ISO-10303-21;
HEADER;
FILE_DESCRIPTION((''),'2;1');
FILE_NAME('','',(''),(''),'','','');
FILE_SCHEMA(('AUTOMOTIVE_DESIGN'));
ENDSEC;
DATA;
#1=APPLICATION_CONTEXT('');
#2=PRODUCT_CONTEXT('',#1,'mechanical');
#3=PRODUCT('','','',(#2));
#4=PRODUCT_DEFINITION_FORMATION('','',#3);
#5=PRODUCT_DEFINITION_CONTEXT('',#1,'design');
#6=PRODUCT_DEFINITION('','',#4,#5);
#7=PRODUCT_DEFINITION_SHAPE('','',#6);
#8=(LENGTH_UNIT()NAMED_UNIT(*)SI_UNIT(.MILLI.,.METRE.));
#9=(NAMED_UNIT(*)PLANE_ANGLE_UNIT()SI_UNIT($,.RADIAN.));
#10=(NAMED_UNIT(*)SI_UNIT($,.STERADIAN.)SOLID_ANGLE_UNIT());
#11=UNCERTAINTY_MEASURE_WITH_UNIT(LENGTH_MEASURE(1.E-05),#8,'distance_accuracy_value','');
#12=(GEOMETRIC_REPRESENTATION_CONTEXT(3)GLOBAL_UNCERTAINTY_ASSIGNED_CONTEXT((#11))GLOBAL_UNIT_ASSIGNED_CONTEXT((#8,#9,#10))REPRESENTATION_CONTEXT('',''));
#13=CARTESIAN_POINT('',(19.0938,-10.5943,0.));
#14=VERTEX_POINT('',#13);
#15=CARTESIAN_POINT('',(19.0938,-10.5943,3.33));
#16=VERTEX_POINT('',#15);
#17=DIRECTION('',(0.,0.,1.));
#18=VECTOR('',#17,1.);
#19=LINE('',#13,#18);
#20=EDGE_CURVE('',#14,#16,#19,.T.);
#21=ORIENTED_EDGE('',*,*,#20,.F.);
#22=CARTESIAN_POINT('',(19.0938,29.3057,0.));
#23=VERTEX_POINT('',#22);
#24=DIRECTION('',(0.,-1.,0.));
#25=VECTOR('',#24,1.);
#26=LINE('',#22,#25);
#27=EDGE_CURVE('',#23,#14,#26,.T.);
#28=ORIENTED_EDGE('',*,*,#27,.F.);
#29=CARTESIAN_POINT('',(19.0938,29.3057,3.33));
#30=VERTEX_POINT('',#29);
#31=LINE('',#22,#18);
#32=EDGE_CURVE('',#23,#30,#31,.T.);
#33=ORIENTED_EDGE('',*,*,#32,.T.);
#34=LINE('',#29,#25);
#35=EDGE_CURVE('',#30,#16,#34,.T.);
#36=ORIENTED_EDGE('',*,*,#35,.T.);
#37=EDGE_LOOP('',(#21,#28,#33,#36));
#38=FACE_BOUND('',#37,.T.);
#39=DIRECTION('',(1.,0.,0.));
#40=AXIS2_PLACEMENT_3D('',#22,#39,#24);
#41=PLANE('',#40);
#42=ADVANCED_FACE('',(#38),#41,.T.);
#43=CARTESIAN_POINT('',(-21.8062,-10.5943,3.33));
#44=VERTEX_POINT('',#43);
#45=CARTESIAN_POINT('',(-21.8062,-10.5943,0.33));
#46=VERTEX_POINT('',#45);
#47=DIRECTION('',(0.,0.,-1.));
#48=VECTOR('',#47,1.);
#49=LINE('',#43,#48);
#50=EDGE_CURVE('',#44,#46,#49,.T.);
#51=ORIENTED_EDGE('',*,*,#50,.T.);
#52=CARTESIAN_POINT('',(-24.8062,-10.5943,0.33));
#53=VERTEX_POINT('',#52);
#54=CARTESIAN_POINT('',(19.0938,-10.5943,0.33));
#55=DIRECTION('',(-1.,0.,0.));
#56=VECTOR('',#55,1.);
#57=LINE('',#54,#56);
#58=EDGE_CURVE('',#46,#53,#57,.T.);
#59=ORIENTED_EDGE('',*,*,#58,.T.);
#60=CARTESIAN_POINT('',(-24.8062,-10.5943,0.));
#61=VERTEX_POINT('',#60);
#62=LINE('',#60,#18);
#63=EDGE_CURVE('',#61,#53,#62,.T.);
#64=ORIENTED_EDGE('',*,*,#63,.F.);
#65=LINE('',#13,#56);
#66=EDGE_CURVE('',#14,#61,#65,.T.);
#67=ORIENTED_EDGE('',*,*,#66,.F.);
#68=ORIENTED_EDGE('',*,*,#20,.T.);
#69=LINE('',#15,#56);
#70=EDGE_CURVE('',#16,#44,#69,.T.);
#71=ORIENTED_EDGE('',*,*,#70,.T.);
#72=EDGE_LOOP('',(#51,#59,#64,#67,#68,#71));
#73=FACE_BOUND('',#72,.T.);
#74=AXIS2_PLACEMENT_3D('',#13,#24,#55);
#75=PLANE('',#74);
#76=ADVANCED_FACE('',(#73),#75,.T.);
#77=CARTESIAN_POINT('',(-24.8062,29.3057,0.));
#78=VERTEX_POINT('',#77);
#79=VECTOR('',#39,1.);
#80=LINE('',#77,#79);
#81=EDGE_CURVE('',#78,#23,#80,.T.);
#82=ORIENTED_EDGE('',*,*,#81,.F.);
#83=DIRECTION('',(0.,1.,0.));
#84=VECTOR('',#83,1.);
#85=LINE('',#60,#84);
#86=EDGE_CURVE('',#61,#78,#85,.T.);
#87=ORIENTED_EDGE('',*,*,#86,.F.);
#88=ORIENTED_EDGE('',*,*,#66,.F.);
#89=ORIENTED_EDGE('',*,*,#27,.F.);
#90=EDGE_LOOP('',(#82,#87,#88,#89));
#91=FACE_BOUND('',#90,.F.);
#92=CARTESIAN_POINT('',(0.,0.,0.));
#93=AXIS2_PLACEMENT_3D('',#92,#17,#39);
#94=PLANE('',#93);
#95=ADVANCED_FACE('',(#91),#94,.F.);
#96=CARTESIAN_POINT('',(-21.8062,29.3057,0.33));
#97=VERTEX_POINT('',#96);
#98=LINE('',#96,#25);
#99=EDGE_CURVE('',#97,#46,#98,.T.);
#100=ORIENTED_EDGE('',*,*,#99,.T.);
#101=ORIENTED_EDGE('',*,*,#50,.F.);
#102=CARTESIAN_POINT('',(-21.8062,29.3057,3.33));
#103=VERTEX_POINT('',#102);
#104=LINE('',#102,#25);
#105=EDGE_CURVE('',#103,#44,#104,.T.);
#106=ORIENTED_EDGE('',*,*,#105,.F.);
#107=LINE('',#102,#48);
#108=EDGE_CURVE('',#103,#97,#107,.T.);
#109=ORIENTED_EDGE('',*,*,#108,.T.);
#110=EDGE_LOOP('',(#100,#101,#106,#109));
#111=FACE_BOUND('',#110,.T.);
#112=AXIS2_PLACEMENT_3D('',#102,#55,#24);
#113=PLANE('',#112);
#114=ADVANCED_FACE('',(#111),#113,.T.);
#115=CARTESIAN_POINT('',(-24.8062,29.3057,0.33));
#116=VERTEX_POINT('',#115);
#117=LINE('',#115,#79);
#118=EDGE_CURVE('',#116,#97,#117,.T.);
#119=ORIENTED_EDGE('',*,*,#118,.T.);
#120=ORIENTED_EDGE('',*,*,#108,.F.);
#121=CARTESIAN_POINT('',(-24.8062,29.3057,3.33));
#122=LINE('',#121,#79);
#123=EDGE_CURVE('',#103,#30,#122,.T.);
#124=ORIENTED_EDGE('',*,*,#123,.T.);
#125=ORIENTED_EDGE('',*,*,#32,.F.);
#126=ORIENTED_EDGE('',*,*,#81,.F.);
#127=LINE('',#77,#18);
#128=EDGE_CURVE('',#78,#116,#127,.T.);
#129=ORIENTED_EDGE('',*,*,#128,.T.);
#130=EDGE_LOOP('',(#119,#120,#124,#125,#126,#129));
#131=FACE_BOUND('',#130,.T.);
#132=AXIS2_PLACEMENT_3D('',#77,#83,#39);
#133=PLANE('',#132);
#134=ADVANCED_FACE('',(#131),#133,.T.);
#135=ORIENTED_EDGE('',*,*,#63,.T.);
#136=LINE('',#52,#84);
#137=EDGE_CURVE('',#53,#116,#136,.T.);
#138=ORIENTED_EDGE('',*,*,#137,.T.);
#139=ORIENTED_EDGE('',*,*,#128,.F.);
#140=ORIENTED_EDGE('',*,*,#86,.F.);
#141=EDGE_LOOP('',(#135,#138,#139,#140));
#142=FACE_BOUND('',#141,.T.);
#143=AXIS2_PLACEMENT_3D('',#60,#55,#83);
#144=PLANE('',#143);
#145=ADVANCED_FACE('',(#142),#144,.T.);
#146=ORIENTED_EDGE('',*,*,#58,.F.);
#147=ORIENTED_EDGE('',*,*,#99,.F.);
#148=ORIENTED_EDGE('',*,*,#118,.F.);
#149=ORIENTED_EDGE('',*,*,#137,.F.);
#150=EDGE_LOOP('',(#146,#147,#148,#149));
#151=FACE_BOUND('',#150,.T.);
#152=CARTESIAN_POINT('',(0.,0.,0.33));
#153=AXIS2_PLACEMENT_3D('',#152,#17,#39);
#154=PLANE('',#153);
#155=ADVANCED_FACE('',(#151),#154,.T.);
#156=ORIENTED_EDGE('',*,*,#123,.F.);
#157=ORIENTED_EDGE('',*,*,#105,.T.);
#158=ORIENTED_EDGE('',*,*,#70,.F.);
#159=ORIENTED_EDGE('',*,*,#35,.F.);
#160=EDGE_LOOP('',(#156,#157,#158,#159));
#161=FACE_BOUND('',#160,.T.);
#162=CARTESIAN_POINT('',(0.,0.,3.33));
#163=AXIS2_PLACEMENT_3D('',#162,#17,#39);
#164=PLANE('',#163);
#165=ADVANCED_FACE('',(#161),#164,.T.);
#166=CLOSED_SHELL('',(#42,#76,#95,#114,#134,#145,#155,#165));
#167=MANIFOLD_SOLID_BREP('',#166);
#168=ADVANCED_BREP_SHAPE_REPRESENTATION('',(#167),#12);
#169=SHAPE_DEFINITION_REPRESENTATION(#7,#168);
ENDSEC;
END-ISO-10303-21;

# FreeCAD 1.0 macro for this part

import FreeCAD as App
import Part
import Sketcher

V = App.Vector
Q = App.Units.Quantity


def add_polygon(sketch, points):
    """Adds a closed chain of lines whose ends are joined by coincident constraints."""
    first, n = sketch.GeometryCount, len(points)
    for a, b in zip(points, points[1:] + points[:1]):
        sketch.addGeometry(Part.LineSegment(App.Vector(*a, 0), App.Vector(*b, 0)), False)
    for i in range(n):
        sketch.addConstraint(Sketcher.Constraint("Coincident", first + i, 2, first + (i + 1) % n, 1))

doc = App.newDocument("Part")
params = doc.addObject("Spreadsheet::Sheet", "Params")
for row, (alias, value) in enumerate([
    ("sketch1_width", "43.9 mm"),
    ("sketch1_height", "39.9 mm"),
    ("pad1_length", "3.33 mm"),
    ("sketch2_width", "3 mm"),
    ("sketch2_height", "39.9 mm"),
    ("pocket1_length", "3 mm"),
], start=1):
    params.set(f"A{row}", alias)
    params.set(f"B{row}", "=" + value)
    params.setAlias(f"B{row}", alias)

body = doc.addObject("PartDesign::Body", "Body")

# Sketch on XY plane
sketch1 = doc.addObject("Sketcher::SketchObject", "Sketch")
body.addObject(sketch1)
sketch1.AttachmentSupport = (doc.XY_Plane, [""])
sketch1.MapMode = "FlatFace"
add_polygon(sketch1, [(19.0938, 29.3057), (-24.8062, 29.3057), (-24.8062, -10.5943), (19.0938, -10.5943)])  # lines 0-3
sketch1.addConstraint(Sketcher.Constraint("Horizontal", 0))
sketch1.addConstraint(Sketcher.Constraint("Vertical", 1))
sketch1.addConstraint(Sketcher.Constraint("Horizontal", 2))
sketch1.addConstraint(Sketcher.Constraint("Vertical", 3))
sketch1.addConstraint(Sketcher.Constraint("DistanceX", 0, 2, 0, 1, Q("43.9 mm")))
sketch1.addConstraint(Sketcher.Constraint("DistanceY", 1, 2, 1, 1, Q("39.9 mm")))
sketch1.addConstraint(Sketcher.Constraint("DistanceX", 0, 2, -1, 1, Q("24.8062 mm")))
sketch1.addConstraint(Sketcher.Constraint("DistanceY", -1, 1, 0, 2, Q("29.3057 mm")))
sketch1.setExpression("Constraints[8]", "Params.sketch1_width")
sketch1.setExpression("Constraints[9]", "Params.sketch1_height")
pad1 = doc.addObject("PartDesign::Pad", "Pad")
body.addObject(pad1)
pad1.Profile = sketch1
pad1.setExpression("Length", "Params.pad1_length")

# Sketch on XY plane
sketch2 = doc.addObject("Sketcher::SketchObject", "Sketch001")
body.addObject(sketch2)
sketch2.AttachmentSupport = (doc.XY_Plane, [""])
sketch2.MapMode = "FlatFace"
sketch2.AttachmentOffset = App.Placement(V(0, 0, 3.33), App.Rotation())
add_polygon(sketch2, [(-24.8062, -10.5943), (-21.8062, -10.5943), (-21.8062, 29.3057), (-24.8062, 29.3057)])  # lines 0-3
sketch2.addConstraint(Sketcher.Constraint("Horizontal", 0))
sketch2.addConstraint(Sketcher.Constraint("Vertical", 1))
sketch2.addConstraint(Sketcher.Constraint("Horizontal", 2))
sketch2.addConstraint(Sketcher.Constraint("Vertical", 3))
sketch2.addConstraint(Sketcher.Constraint("DistanceX", 0, 1, 0, 2, Q("3 mm")))
sketch2.addConstraint(Sketcher.Constraint("DistanceY", 1, 1, 1, 2, Q("39.9 mm")))
sketch2.addConstraint(Sketcher.Constraint("DistanceX", 0, 2, -1, 1, Q("21.8062 mm")))
sketch2.addConstraint(Sketcher.Constraint("DistanceY", 0, 2, -1, 1, Q("10.5943 mm")))
sketch2.setExpression("Constraints[8]", "Params.sketch2_width")
sketch2.setExpression("Constraints[9]", "Params.sketch2_height")
pocket1 = doc.addObject("PartDesign::Pocket", "Pocket")
body.addObject(pocket1)
pocket1.Profile = sketch2
pocket1.setExpression("Length", "Params.pocket1_length")

doc.recompute()
